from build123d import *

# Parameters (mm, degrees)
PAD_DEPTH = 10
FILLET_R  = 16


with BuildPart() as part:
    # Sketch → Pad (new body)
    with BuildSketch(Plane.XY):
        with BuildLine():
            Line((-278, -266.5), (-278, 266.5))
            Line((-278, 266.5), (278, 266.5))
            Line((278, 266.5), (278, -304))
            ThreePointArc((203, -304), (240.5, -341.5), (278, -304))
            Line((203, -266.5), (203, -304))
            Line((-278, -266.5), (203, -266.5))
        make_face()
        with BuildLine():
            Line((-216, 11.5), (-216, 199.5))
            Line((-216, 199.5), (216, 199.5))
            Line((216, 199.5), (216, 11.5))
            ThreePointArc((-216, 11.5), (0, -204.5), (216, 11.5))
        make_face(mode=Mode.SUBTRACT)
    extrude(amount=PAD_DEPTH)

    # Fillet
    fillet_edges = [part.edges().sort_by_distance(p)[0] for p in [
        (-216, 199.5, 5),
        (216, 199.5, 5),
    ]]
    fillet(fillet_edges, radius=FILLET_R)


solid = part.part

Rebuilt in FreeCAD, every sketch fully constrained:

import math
import FreeCAD as App
import Part
import Sketcher

V = App.Vector


def edges_at(feature, points):
    """Names of the edges that pass closest to the given points."""
    edges = feature.Shape.Edges
    near = lambda p: min(range(len(edges)), key=lambda i: edges[i].distToShape(Part.Vertex(*p))[0])
    return sorted({f"Edge{near(p) + 1}" for p in points})

doc = App.newDocument("Part")
body = doc.addObject("PartDesign::Body", "Body")

# Sketch on XY plane
sketch1 = body.newObject("Sketcher::SketchObject", "Sketch")
sketch1.AttachmentSupport = (doc.getObject("XY_Plane"), [""])
sketch1.MapMode = "FlatFace"
sketch1.addGeometry(Part.LineSegment(V(-278, 266, 0), V(-278, -266, 0)), False)
sketch1.addGeometry(Part.LineSegment(V(-278, -266, 0), V(203, -266, 0)), False)
sketch1.addGeometry(Part.LineSegment(V(203, -266, 0), V(203, -304, 0)), False)
sketch1.addGeometry(Part.ArcOfCircle(Part.Circle(V(240, -304, 0), V(0, 0, 1), 38), math.radians(180), math.radians(360)), False)
sketch1.addGeometry(Part.LineSegment(V(278, -304, 0), V(278, 266, 0)), False)
sketch1.addGeometry(Part.LineSegment(V(278, 266, 0), V(-278, 266, 0)), False)
sketch1.addGeometry(Part.LineSegment(V(-216, 12, 0), V(-216, 200, 0)), False)
sketch1.addGeometry(Part.LineSegment(V(-216, 200, 0), V(216, 200, 0)), False)
sketch1.addGeometry(Part.LineSegment(V(216, 200, 0), V(216, 12, 0)), False)
sketch1.addGeometry(Part.ArcOfCircle(Part.Circle(V(0, 12, 0), V(0, 0, 1), 216), math.radians(180), math.radians(360)), False)
sketch1.addConstraint(Sketcher.Constraint("Coincident", 0, 2, 1, 1))
sketch1.addConstraint(Sketcher.Constraint("Coincident", 1, 2, 2, 1))
sketch1.addConstraint(Sketcher.Constraint("Tangent", 2, 2, 3, 1))
sketch1.addConstraint(Sketcher.Constraint("Tangent", 3, 2, 4, 1))
sketch1.addConstraint(Sketcher.Constraint("Coincident", 4, 2, 5, 1))
sketch1.addConstraint(Sketcher.Constraint("Coincident", 5, 2, 0, 1))
sketch1.addConstraint(Sketcher.Constraint("Coincident", 6, 2, 7, 1))
sketch1.addConstraint(Sketcher.Constraint("Coincident", 7, 2, 8, 1))
sketch1.addConstraint(Sketcher.Constraint("Tangent", 8, 2, 9, 2))
sketch1.addConstraint(Sketcher.Constraint("Tangent", 9, 1, 6, 1))
sketch1.addConstraint(Sketcher.Constraint("Vertical", 0))
sketch1.addConstraint(Sketcher.Constraint("Horizontal", 1))
sketch1.addConstraint(Sketcher.Constraint("Vertical", 2))
sketch1.addConstraint(Sketcher.Constraint("Vertical", 4))
sketch1.addConstraint(Sketcher.Constraint("Horizontal", 5))
sketch1.addConstraint(Sketcher.Constraint("Vertical", 6))
sketch1.addConstraint(Sketcher.Constraint("Horizontal", 7))
sketch1.addConstraint(Sketcher.Constraint("Vertical", 8))
sketch1.addConstraint(Sketcher.Constraint("Symmetric", 0, 2, 4, 2, -1, 1))
sketch1.addConstraint(Sketcher.Constraint("PointOnObject", 9, 3, -2))
sketch1.addConstraint(Sketcher.Constraint("Radius", 9, 216.0))
sketch1.addConstraint(Sketcher.Constraint("Radius", 3, 37.5))
sketch1.addConstraint(Sketcher.Constraint("DistanceX", 1, 1, 1, 2, 481.0))
sketch1.addConstraint(Sketcher.Constraint("DistanceY", 0, 2, 0, 1, 533.0))
sketch1.addConstraint(Sketcher.Constraint("DistanceY", 6, 1, 6, 2, 188.0))
sketch1.addConstraint(Sketcher.Constraint("DistanceY", 2, 2, 2, 1, 37.5))
sketch1.addConstraint(Sketcher.Constraint("DistanceY", 0, 2, 9, 3, 278.0))
pad1 = body.newObject("PartDesign::Pad", "Pad")
pad1.Profile = sketch1
pad1.Length = 10
doc.recompute()

fillet = body.newObject("PartDesign::Fillet", "Fillet")
fillet.Base = (pad1, edges_at(pad1, [(-216, 199.5, 5), (216, 199.5, 5)]))
fillet.Radius = 16

doc.recompute()
